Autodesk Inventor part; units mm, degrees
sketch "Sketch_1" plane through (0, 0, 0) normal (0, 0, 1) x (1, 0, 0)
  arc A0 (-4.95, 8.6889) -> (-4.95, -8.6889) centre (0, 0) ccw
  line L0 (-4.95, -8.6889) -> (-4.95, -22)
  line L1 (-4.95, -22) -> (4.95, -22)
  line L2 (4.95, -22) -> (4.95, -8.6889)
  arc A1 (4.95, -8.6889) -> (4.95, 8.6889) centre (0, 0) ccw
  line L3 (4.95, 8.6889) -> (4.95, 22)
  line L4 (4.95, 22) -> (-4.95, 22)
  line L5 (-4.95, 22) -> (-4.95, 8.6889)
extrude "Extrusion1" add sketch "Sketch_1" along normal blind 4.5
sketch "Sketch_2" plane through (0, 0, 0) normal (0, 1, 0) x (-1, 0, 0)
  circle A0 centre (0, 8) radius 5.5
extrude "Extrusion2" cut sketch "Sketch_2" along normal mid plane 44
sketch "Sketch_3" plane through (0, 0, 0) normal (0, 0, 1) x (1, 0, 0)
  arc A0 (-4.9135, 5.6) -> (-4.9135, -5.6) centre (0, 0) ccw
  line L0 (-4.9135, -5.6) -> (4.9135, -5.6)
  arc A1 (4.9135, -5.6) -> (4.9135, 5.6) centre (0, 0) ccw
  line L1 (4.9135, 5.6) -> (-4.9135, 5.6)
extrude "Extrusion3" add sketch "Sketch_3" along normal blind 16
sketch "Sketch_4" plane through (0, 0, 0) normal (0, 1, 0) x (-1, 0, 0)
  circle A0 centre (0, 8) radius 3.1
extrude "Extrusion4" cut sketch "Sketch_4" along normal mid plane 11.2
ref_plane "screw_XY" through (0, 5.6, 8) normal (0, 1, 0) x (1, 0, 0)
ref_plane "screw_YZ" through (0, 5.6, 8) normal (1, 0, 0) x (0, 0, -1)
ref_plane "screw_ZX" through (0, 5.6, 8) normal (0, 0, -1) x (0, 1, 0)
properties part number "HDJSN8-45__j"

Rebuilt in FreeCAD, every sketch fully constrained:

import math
import FreeCAD as App
import Part
import Sketcher
from FreeCAD import Vector

doc = App.newDocument("Part")
params = doc.addObject("Spreadsheet::Sheet", "Params")
for row, (alias, value) in enumerate([
    ("sketch1_radius", "10 mm"),
    ("sketch1_width", "9.9 mm"),
    ("pad1_length", "4.5 mm"),
    ("sketch2_diameter", "11 mm"),
    ("pocket1_length", "44 mm"),
    ("sketch3_radius", "7.45 mm"),
    ("pad2_length", "16 mm"),
    ("sketch4_diameter", "6.2 mm"),
    ("pocket2_length", "11.2 mm"),
], start=1):
    params.set(f"A{row}", alias)
    params.set(f"B{row}", "=" + value)
    params.setAlias(f"B{row}", alias)

body = doc.addObject("PartDesign::Body", "Body")

# Sketch on XY plane
sketch1 = body.newObject("Sketcher::SketchObject", "Sketch")
sketch1.AttachmentSupport = (doc.getObject("XY_Plane"), [""])
sketch1.MapMode = "FlatFace"
sketch1.addGeometry(Part.LineSegment(Vector(-5, 22, 0), Vector(-5, 9, 0)), False)
sketch1.addGeometry(Part.ArcOfCircle(Part.Circle(Vector(0, 0, 0), Vector(0, 0, 1), 10), math.radians(120), math.radians(240)), False)
sketch1.addGeometry(Part.LineSegment(Vector(-5, -9, 0), Vector(-5, -22, 0)), False)
sketch1.addGeometry(Part.LineSegment(Vector(-5, -22, 0), Vector(5, -22, 0)), False)
sketch1.addGeometry(Part.LineSegment(Vector(5, -22, 0), Vector(5, -9, 0)), False)
sketch1.addGeometry(Part.ArcOfCircle(Part.Circle(Vector(0, 0, 0), Vector(0, 0, 1), 10), math.radians(-60), math.radians(60)), False)
sketch1.addGeometry(Part.LineSegment(Vector(5, 9, 0), Vector(5, 22, 0)), False)
sketch1.addGeometry(Part.LineSegment(Vector(5, 22, 0), Vector(-5, 22, 0)), False)
sketch1.addConstraint(Sketcher.Constraint("Coincident", 0, 2, 1, 1))
sketch1.addConstraint(Sketcher.Constraint("Coincident", 1, 2, 2, 1))
sketch1.addConstraint(Sketcher.Constraint("Coincident", 2, 2, 3, 1))
sketch1.addConstraint(Sketcher.Constraint("Coincident", 3, 2, 4, 1))
sketch1.addConstraint(Sketcher.Constraint("Coincident", 4, 2, 5, 1))
sketch1.addConstraint(Sketcher.Constraint("Coincident", 5, 2, 6, 1))
sketch1.addConstraint(Sketcher.Constraint("Coincident", 6, 2, 7, 1))
sketch1.addConstraint(Sketcher.Constraint("Coincident", 7, 2, 0, 1))
sketch1.addConstraint(Sketcher.Constraint("Vertical", 0))
sketch1.addConstraint(Sketcher.Constraint("Vertical", 2))
sketch1.addConstraint(Sketcher.Constraint("Horizontal", 3))
sketch1.addConstraint(Sketcher.Constraint("Vertical", 4))
sketch1.addConstraint(Sketcher.Constraint("Vertical", 6))
sketch1.addConstraint(Sketcher.Constraint("Horizontal", 7))
sketch1.addConstraint(Sketcher.Constraint("Coincident", 1, 3, -1, 1))
sketch1.addConstraint(Sketcher.Constraint("Coincident", 5, 3, -1, 1))
sketch1.addConstraint(Sketcher.Constraint("Equal", 1, 5))
sketch1.addConstraint(Sketcher.Constraint("Symmetric", 2, 2, 6, 2, -1, 1))
sketch1.addConstraint(Sketcher.Constraint("Horizontal", 1, 2, 4, 2))
sketch1.addConstraint(Sketcher.Constraint("Horizontal", 0, 2, 5, 2))
sketch1.addConstraint(Sketcher.Constraint("Radius", 1, 10.0))
sketch1.addConstraint(Sketcher.Constraint("DistanceX", 3, 1, 3, 2, 9.9))
sketch1.addConstraint(Sketcher.Constraint("DistanceY", 2, 2, -1, 1, 22.0))
sketch1.setExpression("Constraints[20]", "Params.sketch1_radius")
sketch1.setExpression("Constraints[21]", "Params.sketch1_width")
pad1 = body.newObject("PartDesign::Pad", "Pad")
pad1.Profile = sketch1
pad1.setExpression("Length", "Params.pad1_length")

# Sketch on XZ plane
sketch2 = body.newObject("Sketcher::SketchObject", "Sketch001")
sketch2.AttachmentSupport = (doc.getObject("XZ_Plane"), [""])
sketch2.MapMode = "FlatFace"
sketch2.addGeometry(Part.Circle(Vector(0, 8, 0), Vector(0, 0, 1), 6), False)
sketch2.addConstraint(Sketcher.Constraint("PointOnObject", 0, 3, -2))
sketch2.addConstraint(Sketcher.Constraint("Diameter", 0, 11.0))
sketch2.addConstraint(Sketcher.Constraint("DistanceY", -1, 1, 0, 3, 8.0))
sketch2.setExpression("Constraints[1]", "Params.sketch2_diameter")
pocket1 = body.newObject("PartDesign::Pocket", "Pocket")
pocket1.Profile = sketch2
pocket1.setExpression("Length", "Params.pocket1_length")
pocket1.Midplane = True

# Sketch on XY plane
sketch3 = body.newObject("Sketcher::SketchObject", "Sketch002")
sketch3.AttachmentSupport = (doc.getObject("XY_Plane"), [""])
sketch3.MapMode = "FlatFace"
sketch3.addGeometry(Part.LineSegment(Vector(5, 6, 0), Vector(-5, 6, 0)), False)
sketch3.addGeometry(Part.ArcOfCircle(Part.Circle(Vector(0, 0, 0), Vector(0, 0, 1), 7), math.radians(131), math.radians(229)), False)
sketch3.addGeometry(Part.LineSegment(Vector(-5, -6, 0), Vector(5, -6, 0)), False)
sketch3.addGeometry(Part.ArcOfCircle(Part.Circle(Vector(0, 0, 0), Vector(0, 0, 1), 7), math.radians(-49), math.radians(49)), False)
sketch3.addConstraint(Sketcher.Constraint("Coincident", 0, 2, 1, 1))
sketch3.addConstraint(Sketcher.Constraint("Coincident", 1, 2, 2, 1))
sketch3.addConstraint(Sketcher.Constraint("Coincident", 2, 2, 3, 1))
sketch3.addConstraint(Sketcher.Constraint("Coincident", 3, 2, 0, 1))
sketch3.addConstraint(Sketcher.Constraint("Horizontal", 0))
sketch3.addConstraint(Sketcher.Constraint("Horizontal", 2))
sketch3.addConstraint(Sketcher.Constraint("Coincident", 1, 3, -1, 1))
sketch3.addConstraint(Sketcher.Constraint("Coincident", 3, 3, -1, 1))
sketch3.addConstraint(Sketcher.Constraint("Equal", 1, 3))
sketch3.addConstraint(Sketcher.Constraint("Vertical", 0, 2, 1, 2))
sketch3.addConstraint(Sketcher.Constraint("Radius", 1, 7.45))
sketch3.addConstraint(Sketcher.Constraint("DistanceY", -1, 1, 0, 2, 5.6))
sketch3.setExpression("Constraints[10]", "Params.sketch3_radius")
pad2 = body.newObject("PartDesign::Pad", "Pad001")
pad2.Profile = sketch3
pad2.setExpression("Length", "Params.pad2_length")

# Sketch on XZ plane
sketch4 = body.newObject("Sketcher::SketchObject", "Sketch003")
sketch4.AttachmentSupport = (doc.getObject("XZ_Plane"), [""])
sketch4.MapMode = "FlatFace"
sketch4.addGeometry(Part.Circle(Vector(0, 8, 0), Vector(0, 0, 1), 3.1), False)
sketch4.addConstraint(Sketcher.Constraint("PointOnObject", 0, 3, -2))
sketch4.addConstraint(Sketcher.Constraint("Diameter", 0, 6.2))
sketch4.addConstraint(Sketcher.Constraint("DistanceY", -1, 1, 0, 3, 8.0))
sketch4.setExpression("Constraints[1]", "Params.sketch4_diameter")
pocket2 = body.newObject("PartDesign::Pocket", "Pocket001")
pocket2.Profile = sketch4
pocket2.setExpression("Length", "Params.pocket2_length")
pocket2.Midplane = True

doc.recompute()
